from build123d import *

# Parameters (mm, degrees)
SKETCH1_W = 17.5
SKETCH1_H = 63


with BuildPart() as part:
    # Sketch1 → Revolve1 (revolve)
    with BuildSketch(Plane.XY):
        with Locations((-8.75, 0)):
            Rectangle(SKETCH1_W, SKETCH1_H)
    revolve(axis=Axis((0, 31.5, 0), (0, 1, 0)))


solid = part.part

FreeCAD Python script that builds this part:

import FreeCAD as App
import Part
import Sketcher
from FreeCAD import Vector

doc = App.newDocument("Part")
body = doc.addObject("PartDesign::Body", "Body")

# Sketch on XY plane
sketch1 = body.newObject("Sketcher::SketchObject", "Sketch")
sketch1.AttachmentSupport = (doc.getObject("XY_Plane"), [""])
sketch1.MapMode = "FlatFace"
sketch1.addGeometry([
    Part.LineSegment(Vector(-17.5, 31.5, 0), Vector(-17.5, -31.5, 0)),
    Part.LineSegment(Vector(-17.5, -31.5, 0), Vector(0, -31.5, 0)),
    Part.LineSegment(Vector(0, -31.5, 0), Vector(0, 31.5, 0)),
    Part.LineSegment(Vector(0, 31.5, 0), Vector(-17.5, 31.5, 0)),
], False)
sketch1.addConstraint([
    Sketcher.Constraint("Coincident", 0, 2, 1, 1),
    Sketcher.Constraint("Coincident", 1, 2, 2, 1),
    Sketcher.Constraint("Coincident", 2, 2, 3, 1),
    Sketcher.Constraint("Coincident", 3, 2, 0, 1),
    Sketcher.Constraint("Vertical", 0),
    Sketcher.Constraint("Horizontal", 1),
    Sketcher.Constraint("Vertical", 2),
    Sketcher.Constraint("Horizontal", 3),
    Sketcher.Constraint("Symmetric", 1, 2, 2, 2, -1, 1),
    Sketcher.Constraint("DistanceY", 0, 2, 0, 1, 63.0),
    Sketcher.Constraint("DistanceX", 1, 1, 1, 2, 17.5),
])
revolution = body.newObject("PartDesign::Revolution", "Revolution")
revolution.Profile = sketch1
revolution.ReferenceAxis = (sketch1, ["V_Axis"])
revolution.Angle = 360

doc.recompute()
